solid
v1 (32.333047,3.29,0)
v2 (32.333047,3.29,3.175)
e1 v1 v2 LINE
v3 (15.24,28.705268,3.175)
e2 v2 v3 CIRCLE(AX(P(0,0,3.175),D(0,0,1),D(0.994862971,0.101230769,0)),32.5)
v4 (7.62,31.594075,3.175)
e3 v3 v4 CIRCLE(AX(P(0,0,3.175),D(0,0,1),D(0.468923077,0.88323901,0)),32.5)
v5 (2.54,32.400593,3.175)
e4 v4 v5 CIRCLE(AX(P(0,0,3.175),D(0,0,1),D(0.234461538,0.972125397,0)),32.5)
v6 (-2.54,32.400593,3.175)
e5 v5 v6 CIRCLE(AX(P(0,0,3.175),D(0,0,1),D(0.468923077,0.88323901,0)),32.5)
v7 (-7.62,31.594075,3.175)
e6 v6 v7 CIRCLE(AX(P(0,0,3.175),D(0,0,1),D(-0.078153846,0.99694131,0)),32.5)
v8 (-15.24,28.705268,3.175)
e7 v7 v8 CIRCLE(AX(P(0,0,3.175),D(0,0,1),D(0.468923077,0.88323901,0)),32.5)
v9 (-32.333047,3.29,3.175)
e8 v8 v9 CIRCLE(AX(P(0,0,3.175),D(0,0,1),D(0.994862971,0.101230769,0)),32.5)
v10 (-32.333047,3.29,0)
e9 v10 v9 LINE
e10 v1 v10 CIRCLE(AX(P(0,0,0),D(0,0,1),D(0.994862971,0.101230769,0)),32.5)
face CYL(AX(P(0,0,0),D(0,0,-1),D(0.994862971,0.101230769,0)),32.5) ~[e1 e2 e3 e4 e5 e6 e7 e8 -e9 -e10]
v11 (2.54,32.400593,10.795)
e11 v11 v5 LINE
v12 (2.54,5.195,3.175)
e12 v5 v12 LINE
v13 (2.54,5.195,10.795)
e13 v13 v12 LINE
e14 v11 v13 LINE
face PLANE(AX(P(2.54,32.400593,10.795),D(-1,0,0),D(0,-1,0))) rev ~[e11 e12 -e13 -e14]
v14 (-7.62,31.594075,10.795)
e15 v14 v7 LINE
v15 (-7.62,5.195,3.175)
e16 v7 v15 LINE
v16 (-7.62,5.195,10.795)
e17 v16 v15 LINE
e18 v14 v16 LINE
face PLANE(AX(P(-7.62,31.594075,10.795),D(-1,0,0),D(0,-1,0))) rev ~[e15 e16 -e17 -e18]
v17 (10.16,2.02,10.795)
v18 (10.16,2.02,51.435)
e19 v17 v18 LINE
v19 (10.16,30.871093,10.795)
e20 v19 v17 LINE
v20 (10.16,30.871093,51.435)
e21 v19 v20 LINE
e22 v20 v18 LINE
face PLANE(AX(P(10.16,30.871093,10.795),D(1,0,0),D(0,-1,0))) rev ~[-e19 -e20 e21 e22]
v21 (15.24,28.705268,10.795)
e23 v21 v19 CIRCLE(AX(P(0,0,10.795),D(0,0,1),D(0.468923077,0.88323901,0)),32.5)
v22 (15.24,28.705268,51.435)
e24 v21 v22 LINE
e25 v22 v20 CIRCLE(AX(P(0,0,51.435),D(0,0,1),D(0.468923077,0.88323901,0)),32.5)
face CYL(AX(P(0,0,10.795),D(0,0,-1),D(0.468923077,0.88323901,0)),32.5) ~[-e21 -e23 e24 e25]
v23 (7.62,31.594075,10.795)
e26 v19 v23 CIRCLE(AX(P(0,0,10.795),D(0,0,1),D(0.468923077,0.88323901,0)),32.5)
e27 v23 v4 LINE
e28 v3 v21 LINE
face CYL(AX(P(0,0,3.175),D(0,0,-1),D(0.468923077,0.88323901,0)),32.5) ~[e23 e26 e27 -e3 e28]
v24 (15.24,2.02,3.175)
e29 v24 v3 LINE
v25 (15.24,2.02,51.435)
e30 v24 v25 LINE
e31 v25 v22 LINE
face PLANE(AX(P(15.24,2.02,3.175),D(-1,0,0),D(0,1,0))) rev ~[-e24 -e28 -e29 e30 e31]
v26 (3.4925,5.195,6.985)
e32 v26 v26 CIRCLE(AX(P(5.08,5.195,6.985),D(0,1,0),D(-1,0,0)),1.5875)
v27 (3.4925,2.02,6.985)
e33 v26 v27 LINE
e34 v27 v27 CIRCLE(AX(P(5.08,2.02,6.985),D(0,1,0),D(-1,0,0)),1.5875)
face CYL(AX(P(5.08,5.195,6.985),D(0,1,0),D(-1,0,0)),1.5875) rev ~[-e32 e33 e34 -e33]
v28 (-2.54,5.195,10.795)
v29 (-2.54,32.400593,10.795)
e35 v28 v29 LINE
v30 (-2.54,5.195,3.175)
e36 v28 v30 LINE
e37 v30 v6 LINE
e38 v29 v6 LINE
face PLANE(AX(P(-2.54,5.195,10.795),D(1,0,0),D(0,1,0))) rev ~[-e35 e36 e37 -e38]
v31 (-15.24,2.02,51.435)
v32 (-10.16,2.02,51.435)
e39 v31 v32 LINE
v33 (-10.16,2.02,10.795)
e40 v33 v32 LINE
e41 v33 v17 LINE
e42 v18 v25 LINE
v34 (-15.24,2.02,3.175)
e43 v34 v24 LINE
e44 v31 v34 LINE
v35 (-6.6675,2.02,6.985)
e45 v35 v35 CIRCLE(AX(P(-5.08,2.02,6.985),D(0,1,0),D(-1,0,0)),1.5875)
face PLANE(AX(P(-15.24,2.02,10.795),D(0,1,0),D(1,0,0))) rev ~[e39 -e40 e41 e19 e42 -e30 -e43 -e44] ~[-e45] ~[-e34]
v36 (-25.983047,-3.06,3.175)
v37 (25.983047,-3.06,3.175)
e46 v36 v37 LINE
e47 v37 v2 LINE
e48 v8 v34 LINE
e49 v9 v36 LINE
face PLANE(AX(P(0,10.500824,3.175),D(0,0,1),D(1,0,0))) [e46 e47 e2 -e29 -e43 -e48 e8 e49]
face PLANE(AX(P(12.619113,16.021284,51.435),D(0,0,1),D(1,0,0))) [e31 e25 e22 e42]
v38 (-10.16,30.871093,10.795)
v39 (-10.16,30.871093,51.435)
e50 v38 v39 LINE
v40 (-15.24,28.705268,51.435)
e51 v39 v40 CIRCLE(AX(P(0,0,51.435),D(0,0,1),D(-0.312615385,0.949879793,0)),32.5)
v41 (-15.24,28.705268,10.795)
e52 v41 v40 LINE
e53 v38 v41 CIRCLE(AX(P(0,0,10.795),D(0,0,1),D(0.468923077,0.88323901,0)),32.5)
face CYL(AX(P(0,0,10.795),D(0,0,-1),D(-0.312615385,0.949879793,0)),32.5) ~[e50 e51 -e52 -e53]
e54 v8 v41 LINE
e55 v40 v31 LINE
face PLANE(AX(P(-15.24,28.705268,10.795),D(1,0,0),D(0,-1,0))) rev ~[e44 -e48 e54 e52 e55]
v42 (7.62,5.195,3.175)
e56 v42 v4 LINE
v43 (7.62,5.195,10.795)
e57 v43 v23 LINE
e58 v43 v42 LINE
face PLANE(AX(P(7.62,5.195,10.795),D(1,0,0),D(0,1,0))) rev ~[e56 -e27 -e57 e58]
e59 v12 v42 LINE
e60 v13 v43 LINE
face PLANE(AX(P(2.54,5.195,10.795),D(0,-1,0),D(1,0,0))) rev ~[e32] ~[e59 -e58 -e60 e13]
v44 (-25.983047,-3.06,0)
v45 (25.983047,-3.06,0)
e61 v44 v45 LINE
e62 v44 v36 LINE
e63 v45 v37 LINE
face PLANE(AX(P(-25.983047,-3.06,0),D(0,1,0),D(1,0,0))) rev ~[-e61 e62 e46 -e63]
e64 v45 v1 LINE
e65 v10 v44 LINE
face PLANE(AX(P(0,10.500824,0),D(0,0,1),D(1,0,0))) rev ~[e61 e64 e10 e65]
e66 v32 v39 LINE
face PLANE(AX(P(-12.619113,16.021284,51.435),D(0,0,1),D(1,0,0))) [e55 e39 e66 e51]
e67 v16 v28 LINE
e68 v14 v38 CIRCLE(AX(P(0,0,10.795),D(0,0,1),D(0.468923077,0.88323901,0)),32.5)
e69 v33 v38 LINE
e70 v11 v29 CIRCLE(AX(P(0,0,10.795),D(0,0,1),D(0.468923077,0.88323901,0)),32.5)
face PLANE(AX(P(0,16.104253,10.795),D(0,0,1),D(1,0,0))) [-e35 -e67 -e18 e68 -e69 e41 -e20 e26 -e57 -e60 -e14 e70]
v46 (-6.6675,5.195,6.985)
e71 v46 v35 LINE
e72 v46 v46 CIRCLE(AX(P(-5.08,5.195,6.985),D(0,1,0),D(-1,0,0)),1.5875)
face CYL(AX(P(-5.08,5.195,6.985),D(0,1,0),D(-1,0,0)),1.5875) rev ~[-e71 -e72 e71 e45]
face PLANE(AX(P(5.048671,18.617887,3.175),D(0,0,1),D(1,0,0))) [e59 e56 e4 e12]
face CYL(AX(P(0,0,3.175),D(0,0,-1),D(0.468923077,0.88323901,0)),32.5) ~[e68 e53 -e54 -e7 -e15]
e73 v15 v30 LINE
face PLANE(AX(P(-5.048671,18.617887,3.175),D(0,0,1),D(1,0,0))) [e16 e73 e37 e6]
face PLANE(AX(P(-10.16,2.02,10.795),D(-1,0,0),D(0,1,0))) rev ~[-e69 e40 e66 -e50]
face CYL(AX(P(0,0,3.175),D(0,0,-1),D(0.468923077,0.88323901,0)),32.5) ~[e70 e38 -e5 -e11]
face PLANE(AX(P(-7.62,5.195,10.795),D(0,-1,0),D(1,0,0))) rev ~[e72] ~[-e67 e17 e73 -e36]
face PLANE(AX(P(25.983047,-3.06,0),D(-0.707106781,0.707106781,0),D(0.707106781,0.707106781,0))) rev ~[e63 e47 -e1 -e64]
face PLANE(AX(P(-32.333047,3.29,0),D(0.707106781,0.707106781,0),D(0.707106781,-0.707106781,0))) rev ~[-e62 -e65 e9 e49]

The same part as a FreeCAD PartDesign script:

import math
import FreeCAD as App
import Part
import Sketcher
from FreeCAD import Vector
Q = App.Units.Quantity

doc = App.newDocument("Part")
body = doc.addObject("PartDesign::Body", "Body")

sketch1 = body.newObject("Sketcher::SketchObject", "Sketch")
sketch1.AttachmentSupport = (doc.getObject("XY_Plane"), [""])
sketch1.MapMode = "FlatFace"
sketch1.addGeometry(Part.LineSegment(Vector(26, -3, 0), Vector(32, 3, 0)), False)
sketch1.addGeometry(Part.ArcOfCircle(Part.Circle(Vector(0, 0, 0), Vector(0, 0, 1), 32), math.radians(6), math.radians(174)), False)
sketch1.addGeometry(Part.LineSegment(Vector(-32, 3, 0), Vector(-26, -3, 0)), False)
sketch1.addGeometry(Part.LineSegment(Vector(-26, -3, 0), Vector(26, -3, 0)), False)
sketch1.addConstraint(Sketcher.Constraint("Coincident", 0, 2, 1, 1))
sketch1.addConstraint(Sketcher.Constraint("Coincident", 1, 2, 2, 1))
sketch1.addConstraint(Sketcher.Constraint("Coincident", 2, 2, 3, 1))
sketch1.addConstraint(Sketcher.Constraint("Coincident", 3, 2, 0, 1))
sketch1.addConstraint(Sketcher.Constraint("Horizontal", 3))
sketch1.addConstraint(Sketcher.Constraint("Coincident", 1, 3, -1, 1))
sketch1.addConstraint(Sketcher.Constraint("Perpendicular", 0, 2))
sketch1.addConstraint(Sketcher.Constraint("Horizontal", 0, 2, 1, 2))
sketch1.addConstraint(Sketcher.Constraint("Equal", 0, 2))
sketch1.addConstraint(Sketcher.Constraint("Radius", 1, Q("32.5 mm")))
sketch1.addConstraint(Sketcher.Constraint("DistanceX", 1, 2, 2, 2, Q("0.25 in")))
sketch1.addConstraint(Sketcher.Constraint("DistanceY", -1, 1, 0, 2, Q("3.29 mm")))
pad1 = body.newObject("PartDesign::Pad", "Pad")
pad1.Profile = sketch1
pad1.Length = Q("0.125 in")

sketch2 = body.newObject("Sketcher::SketchObject", "Sketch001")
sketch2.AttachmentSupport = (doc.getObject("XY_Plane"), [""])
sketch2.MapMode = "FlatFace"
sketch2.AttachmentOffset = App.Placement(Vector(0, 0, 0.125 * 25.4), App.Rotation())
sketch2.addGeometry(Part.LineSegment(Vector(15, 2, 0), Vector(15, 29, 0)), False)
sketch2.addGeometry(Part.ArcOfCircle(Part.Circle(Vector(0, 0, 0), Vector(0, 0, 1), 32), math.radians(62), math.radians(118)), False)
sketch2.addGeometry(Part.LineSegment(Vector(-15, 29, 0), Vector(-15, 2, 0)), False)
sketch2.addGeometry(Part.LineSegment(Vector(-15, 2, 0), Vector(15, 2, 0)), False)
sketch2.addConstraint(Sketcher.Constraint("Coincident", 0, 2, 1, 1))
sketch2.addConstraint(Sketcher.Constraint("Coincident", 1, 2, 2, 1))
sketch2.addConstraint(Sketcher.Constraint("Coincident", 2, 2, 3, 1))
sketch2.addConstraint(Sketcher.Constraint("Coincident", 3, 2, 0, 1))
sketch2.addConstraint(Sketcher.Constraint("Vertical", 0))
sketch2.addConstraint(Sketcher.Constraint("Vertical", 2))
sketch2.addConstraint(Sketcher.Constraint("Horizontal", 3))
sketch2.addConstraint(Sketcher.Constraint("Coincident", 1, 3, -1, 1))
sketch2.addConstraint(Sketcher.Constraint("Horizontal", 0, 2, 1, 2))
sketch2.addConstraint(Sketcher.Constraint("DistanceX", 3, 1, 3, 2, Q("1.2 in")))
sketch2.addConstraint(Sketcher.Constraint("Radius", 1, Q("32.5 mm")))
sketch2.addConstraint(Sketcher.Constraint("DistanceY", -1, 1, 2, 2, Q("2.02 mm")))
pad2 = body.newObject("PartDesign::Pad", "Pad001")
pad2.Profile = sketch2
pad2.Length = Q("0.3 in")

sketch3 = body.newObject("Sketcher::SketchObject", "Sketch002")
sketch3.AttachmentSupport = (doc.getObject("XY_Plane"), [""])
sketch3.MapMode = "FlatFace"
sketch3.AttachmentOffset = App.Placement(Vector(0, 0, 0.425 * 25.4), App.Rotation())
sketch3.addGeometry(Part.ArcOfCircle(Part.Circle(Vector(0, 0, 0), Vector(0, 0, 1), 32), math.radians(76.44), math.radians(85.52)), False)
sketch3.addGeometry(Part.LineSegment(Vector(3, 32, 0), Vector(3, 5, 0)), False)
sketch3.addGeometry(Part.LineSegment(Vector(3, 5, 0), Vector(8, 5, 0)), False)
sketch3.addGeometry(Part.LineSegment(Vector(8, 5, 0), Vector(8, 32, 0)), False)
sketch3.addGeometry(Part.LineSegment(Vector(-3, 5, 0), Vector(-3, 32, 0)), False)
sketch3.addGeometry(Part.ArcOfCircle(Part.Circle(Vector(0, 0, 0), Vector(0, 0, 1), 32), math.radians(94.48), math.radians(103.56)), False)
sketch3.addGeometry(Part.LineSegment(Vector(-8, 32, 0), Vector(-8, 5, 0)), False)
sketch3.addGeometry(Part.LineSegment(Vector(-8, 5, 0), Vector(-3, 5, 0)), False)
sketch3.addConstraint(Sketcher.Constraint("Coincident", 0, 2, 1, 1))
sketch3.addConstraint(Sketcher.Constraint("Coincident", 1, 2, 2, 1))
sketch3.addConstraint(Sketcher.Constraint("Coincident", 2, 2, 3, 1))
sketch3.addConstraint(Sketcher.Constraint("Coincident", 3, 2, 0, 1))
sketch3.addConstraint(Sketcher.Constraint("Coincident", 4, 2, 5, 1))
sketch3.addConstraint(Sketcher.Constraint("Coincident", 5, 2, 6, 1))
sketch3.addConstraint(Sketcher.Constraint("Coincident", 6, 2, 7, 1))
sketch3.addConstraint(Sketcher.Constraint("Coincident", 7, 2, 4, 1))
sketch3.addConstraint(Sketcher.Constraint("Vertical", 1))
sketch3.addConstraint(Sketcher.Constraint("Horizontal", 2))
sketch3.addConstraint(Sketcher.Constraint("Vertical", 3))
sketch3.addConstraint(Sketcher.Constraint("Vertical", 4))
sketch3.addConstraint(Sketcher.Constraint("Vertical", 6))
sketch3.addConstraint(Sketcher.Constraint("Horizontal", 7))
sketch3.addConstraint(Sketcher.Constraint("Coincident", 0, 3, -1, 1))
sketch3.addConstraint(Sketcher.Constraint("Coincident", 5, 3, -1, 1))
sketch3.addConstraint(Sketcher.Constraint("Equal", 0, 5))
sketch3.addConstraint(Sketcher.Constraint("Symmetric", 2, 2, 6, 2, -2))
sketch3.addConstraint(Sketcher.Constraint("Horizontal", 0, 2, 4, 2))
sketch3.addConstraint(Sketcher.Constraint("DistanceX", 2, 1, 2, 2, Q("0.2 in")))
sketch3.addConstraint(Sketcher.Constraint("DistanceX", -1, 1, 0, 2, Q("0.1 in")))
sketch3.addConstraint(Sketcher.Constraint("Radius", 0, Q("32.5 mm")))
sketch3.addConstraint(Sketcher.Constraint("DistanceY", -1, 1, 1, 2, Q("5.195 mm")))
pocket1 = body.newObject("PartDesign::Pocket", "Pocket")
pocket1.Profile = sketch3
pocket1.Length = Q("0.3 in")

sketch4 = body.newObject("Sketcher::SketchObject", "Sketch003")
sketch4.AttachmentSupport = (doc.getObject("XY_Plane"), [""])
sketch4.MapMode = "FlatFace"
sketch4.AttachmentOffset = App.Placement(Vector(0, 0, 0.425 * 25.4), App.Rotation())
sketch4.addGeometry(Part.LineSegment(Vector(-10, 2, 0), Vector(-10, 31, 0)), False)
sketch4.addGeometry(Part.ArcOfCircle(Part.Circle(Vector(0, 0, 0), Vector(0, 0, 1), 32), math.radians(108.22), math.radians(117.96)), False)
sketch4.addGeometry(Part.LineSegment(Vector(-15, 29, 0), Vector(-15, 2, 0)), False)
sketch4.addGeometry(Part.LineSegment(Vector(-15, 2, 0), Vector(-10, 2, 0)), False)
sketch4.addGeometry(Part.LineSegment(Vector(10, 31, 0), Vector(10, 2, 0)), False)
sketch4.addGeometry(Part.LineSegment(Vector(10, 2, 0), Vector(15, 2, 0)), False)
sketch4.addGeometry(Part.LineSegment(Vector(15, 2, 0), Vector(15, 29, 0)), False)
sketch4.addGeometry(Part.ArcOfCircle(Part.Circle(Vector(0, 0, 0), Vector(0, 0, 1), 32), math.radians(62.04), math.radians(71.78)), False)
sketch4.addConstraint(Sketcher.Constraint("Coincident", 0, 2, 1, 1))
sketch4.addConstraint(Sketcher.Constraint("Coincident", 1, 2, 2, 1))
sketch4.addConstraint(Sketcher.Constraint("Coincident", 2, 2, 3, 1))
sketch4.addConstraint(Sketcher.Constraint("Coincident", 3, 2, 0, 1))
sketch4.addConstraint(Sketcher.Constraint("Coincident", 4, 2, 5, 1))
sketch4.addConstraint(Sketcher.Constraint("Coincident", 5, 2, 6, 1))
sketch4.addConstraint(Sketcher.Constraint("Coincident", 6, 2, 7, 1))
sketch4.addConstraint(Sketcher.Constraint("Coincident", 7, 2, 4, 1))
sketch4.addConstraint(Sketcher.Constraint("Vertical", 0))
sketch4.addConstraint(Sketcher.Constraint("Vertical", 2))
sketch4.addConstraint(Sketcher.Constraint("Horizontal", 3))
sketch4.addConstraint(Sketcher.Constraint("Vertical", 4))
sketch4.addConstraint(Sketcher.Constraint("Horizontal", 5))
sketch4.addConstraint(Sketcher.Constraint("Vertical", 6))
sketch4.addConstraint(Sketcher.Constraint("Coincident", 1, 3, -1, 1))
sketch4.addConstraint(Sketcher.Constraint("Coincident", 7, 3, -1, 1))
sketch4.addConstraint(Sketcher.Constraint("Equal", 1, 7))
sketch4.addConstraint(Sketcher.Constraint("Symmetric", 3, 2, 4, 2, -2))
sketch4.addConstraint(Sketcher.Constraint("Horizontal", 1, 2, 6, 2))
sketch4.addConstraint(Sketcher.Constraint("DistanceX", 3, 1, 3, 2, Q("0.2 in")))
sketch4.addConstraint(Sketcher.Constraint("DistanceX", 2, 2, 4, 2, Q("1 in")))
sketch4.addConstraint(Sketcher.Constraint("Radius", 1, Q("32.5 mm")))
sketch4.addConstraint(Sketcher.Constraint("DistanceY", -1, 1, 2, 2, Q("2.02 mm")))
pad3 = body.newObject("PartDesign::Pad", "Pad002")
pad3.Profile = sketch4
pad3.Length = Q("1.6 in")

sketch5 = body.newObject("Sketcher::SketchObject", "Sketch004")
sketch5.AttachmentSupport = (doc.getObject("XZ_Plane"), [""])
sketch5.MapMode = "FlatFace"
sketch5.AttachmentOffset = App.Placement(Vector(0, 0, -5.195), App.Rotation())
sketch5.addGeometry(Part.Circle(Vector(5.1, 7, 0), Vector(0, 0, 1), 1.6), False)
sketch5.addGeometry(Part.Circle(Vector(-5.1, 7, 0), Vector(0, 0, 1), 1.6), False)
sketch5.addConstraint(Sketcher.Constraint("Equal", 0, 1))
sketch5.addConstraint(Sketcher.Constraint("Symmetric", 0, 3, 1, 3, -2))
sketch5.addConstraint(Sketcher.Constraint("Diameter", 0, Q("0.125 in")))
sketch5.addConstraint(Sketcher.Constraint("DistanceX", -1, 1, 0, 3, Q("0.2 in")))
sketch5.addConstraint(Sketcher.Constraint("DistanceY", -1, 1, 0, 3, Q("0.275 in")))
pocket2 = body.newObject("PartDesign::Pocket", "Pocket001")
pocket2.Profile = sketch5
pocket2.Length = Q("1 in")
pocket2.Reversed = True

sketch6 = body.newObject("Sketcher::SketchObject", "Sketch005")
sketch6.AttachmentSupport = (doc.getObject("XZ_Plane"), [""])
sketch6.MapMode = "FlatFace"
sketch6.AttachmentOffset = App.Placement(Vector(0, 0, -5.195), App.Rotation())
sketch6.addGeometry(Part.Circle(Vector(-5.1, 7, 0), Vector(0, 0, 1), 1.6), False)
sketch6.addConstraint(Sketcher.Constraint("Diameter", 0, Q("0.125 in")))
sketch6.addConstraint(Sketcher.Constraint("DistanceX", 0, 3, -1, 1, Q("0.2 in")))
sketch6.addConstraint(Sketcher.Constraint("DistanceY", -1, 1, 0, 3, Q("0.275 in")))
pocket3 = body.newObject("PartDesign::Pocket", "Pocket002")
pocket3.Profile = sketch6
pocket3.Length = Q("1 in")
pocket3.Reversed = True

doc.recompute()
